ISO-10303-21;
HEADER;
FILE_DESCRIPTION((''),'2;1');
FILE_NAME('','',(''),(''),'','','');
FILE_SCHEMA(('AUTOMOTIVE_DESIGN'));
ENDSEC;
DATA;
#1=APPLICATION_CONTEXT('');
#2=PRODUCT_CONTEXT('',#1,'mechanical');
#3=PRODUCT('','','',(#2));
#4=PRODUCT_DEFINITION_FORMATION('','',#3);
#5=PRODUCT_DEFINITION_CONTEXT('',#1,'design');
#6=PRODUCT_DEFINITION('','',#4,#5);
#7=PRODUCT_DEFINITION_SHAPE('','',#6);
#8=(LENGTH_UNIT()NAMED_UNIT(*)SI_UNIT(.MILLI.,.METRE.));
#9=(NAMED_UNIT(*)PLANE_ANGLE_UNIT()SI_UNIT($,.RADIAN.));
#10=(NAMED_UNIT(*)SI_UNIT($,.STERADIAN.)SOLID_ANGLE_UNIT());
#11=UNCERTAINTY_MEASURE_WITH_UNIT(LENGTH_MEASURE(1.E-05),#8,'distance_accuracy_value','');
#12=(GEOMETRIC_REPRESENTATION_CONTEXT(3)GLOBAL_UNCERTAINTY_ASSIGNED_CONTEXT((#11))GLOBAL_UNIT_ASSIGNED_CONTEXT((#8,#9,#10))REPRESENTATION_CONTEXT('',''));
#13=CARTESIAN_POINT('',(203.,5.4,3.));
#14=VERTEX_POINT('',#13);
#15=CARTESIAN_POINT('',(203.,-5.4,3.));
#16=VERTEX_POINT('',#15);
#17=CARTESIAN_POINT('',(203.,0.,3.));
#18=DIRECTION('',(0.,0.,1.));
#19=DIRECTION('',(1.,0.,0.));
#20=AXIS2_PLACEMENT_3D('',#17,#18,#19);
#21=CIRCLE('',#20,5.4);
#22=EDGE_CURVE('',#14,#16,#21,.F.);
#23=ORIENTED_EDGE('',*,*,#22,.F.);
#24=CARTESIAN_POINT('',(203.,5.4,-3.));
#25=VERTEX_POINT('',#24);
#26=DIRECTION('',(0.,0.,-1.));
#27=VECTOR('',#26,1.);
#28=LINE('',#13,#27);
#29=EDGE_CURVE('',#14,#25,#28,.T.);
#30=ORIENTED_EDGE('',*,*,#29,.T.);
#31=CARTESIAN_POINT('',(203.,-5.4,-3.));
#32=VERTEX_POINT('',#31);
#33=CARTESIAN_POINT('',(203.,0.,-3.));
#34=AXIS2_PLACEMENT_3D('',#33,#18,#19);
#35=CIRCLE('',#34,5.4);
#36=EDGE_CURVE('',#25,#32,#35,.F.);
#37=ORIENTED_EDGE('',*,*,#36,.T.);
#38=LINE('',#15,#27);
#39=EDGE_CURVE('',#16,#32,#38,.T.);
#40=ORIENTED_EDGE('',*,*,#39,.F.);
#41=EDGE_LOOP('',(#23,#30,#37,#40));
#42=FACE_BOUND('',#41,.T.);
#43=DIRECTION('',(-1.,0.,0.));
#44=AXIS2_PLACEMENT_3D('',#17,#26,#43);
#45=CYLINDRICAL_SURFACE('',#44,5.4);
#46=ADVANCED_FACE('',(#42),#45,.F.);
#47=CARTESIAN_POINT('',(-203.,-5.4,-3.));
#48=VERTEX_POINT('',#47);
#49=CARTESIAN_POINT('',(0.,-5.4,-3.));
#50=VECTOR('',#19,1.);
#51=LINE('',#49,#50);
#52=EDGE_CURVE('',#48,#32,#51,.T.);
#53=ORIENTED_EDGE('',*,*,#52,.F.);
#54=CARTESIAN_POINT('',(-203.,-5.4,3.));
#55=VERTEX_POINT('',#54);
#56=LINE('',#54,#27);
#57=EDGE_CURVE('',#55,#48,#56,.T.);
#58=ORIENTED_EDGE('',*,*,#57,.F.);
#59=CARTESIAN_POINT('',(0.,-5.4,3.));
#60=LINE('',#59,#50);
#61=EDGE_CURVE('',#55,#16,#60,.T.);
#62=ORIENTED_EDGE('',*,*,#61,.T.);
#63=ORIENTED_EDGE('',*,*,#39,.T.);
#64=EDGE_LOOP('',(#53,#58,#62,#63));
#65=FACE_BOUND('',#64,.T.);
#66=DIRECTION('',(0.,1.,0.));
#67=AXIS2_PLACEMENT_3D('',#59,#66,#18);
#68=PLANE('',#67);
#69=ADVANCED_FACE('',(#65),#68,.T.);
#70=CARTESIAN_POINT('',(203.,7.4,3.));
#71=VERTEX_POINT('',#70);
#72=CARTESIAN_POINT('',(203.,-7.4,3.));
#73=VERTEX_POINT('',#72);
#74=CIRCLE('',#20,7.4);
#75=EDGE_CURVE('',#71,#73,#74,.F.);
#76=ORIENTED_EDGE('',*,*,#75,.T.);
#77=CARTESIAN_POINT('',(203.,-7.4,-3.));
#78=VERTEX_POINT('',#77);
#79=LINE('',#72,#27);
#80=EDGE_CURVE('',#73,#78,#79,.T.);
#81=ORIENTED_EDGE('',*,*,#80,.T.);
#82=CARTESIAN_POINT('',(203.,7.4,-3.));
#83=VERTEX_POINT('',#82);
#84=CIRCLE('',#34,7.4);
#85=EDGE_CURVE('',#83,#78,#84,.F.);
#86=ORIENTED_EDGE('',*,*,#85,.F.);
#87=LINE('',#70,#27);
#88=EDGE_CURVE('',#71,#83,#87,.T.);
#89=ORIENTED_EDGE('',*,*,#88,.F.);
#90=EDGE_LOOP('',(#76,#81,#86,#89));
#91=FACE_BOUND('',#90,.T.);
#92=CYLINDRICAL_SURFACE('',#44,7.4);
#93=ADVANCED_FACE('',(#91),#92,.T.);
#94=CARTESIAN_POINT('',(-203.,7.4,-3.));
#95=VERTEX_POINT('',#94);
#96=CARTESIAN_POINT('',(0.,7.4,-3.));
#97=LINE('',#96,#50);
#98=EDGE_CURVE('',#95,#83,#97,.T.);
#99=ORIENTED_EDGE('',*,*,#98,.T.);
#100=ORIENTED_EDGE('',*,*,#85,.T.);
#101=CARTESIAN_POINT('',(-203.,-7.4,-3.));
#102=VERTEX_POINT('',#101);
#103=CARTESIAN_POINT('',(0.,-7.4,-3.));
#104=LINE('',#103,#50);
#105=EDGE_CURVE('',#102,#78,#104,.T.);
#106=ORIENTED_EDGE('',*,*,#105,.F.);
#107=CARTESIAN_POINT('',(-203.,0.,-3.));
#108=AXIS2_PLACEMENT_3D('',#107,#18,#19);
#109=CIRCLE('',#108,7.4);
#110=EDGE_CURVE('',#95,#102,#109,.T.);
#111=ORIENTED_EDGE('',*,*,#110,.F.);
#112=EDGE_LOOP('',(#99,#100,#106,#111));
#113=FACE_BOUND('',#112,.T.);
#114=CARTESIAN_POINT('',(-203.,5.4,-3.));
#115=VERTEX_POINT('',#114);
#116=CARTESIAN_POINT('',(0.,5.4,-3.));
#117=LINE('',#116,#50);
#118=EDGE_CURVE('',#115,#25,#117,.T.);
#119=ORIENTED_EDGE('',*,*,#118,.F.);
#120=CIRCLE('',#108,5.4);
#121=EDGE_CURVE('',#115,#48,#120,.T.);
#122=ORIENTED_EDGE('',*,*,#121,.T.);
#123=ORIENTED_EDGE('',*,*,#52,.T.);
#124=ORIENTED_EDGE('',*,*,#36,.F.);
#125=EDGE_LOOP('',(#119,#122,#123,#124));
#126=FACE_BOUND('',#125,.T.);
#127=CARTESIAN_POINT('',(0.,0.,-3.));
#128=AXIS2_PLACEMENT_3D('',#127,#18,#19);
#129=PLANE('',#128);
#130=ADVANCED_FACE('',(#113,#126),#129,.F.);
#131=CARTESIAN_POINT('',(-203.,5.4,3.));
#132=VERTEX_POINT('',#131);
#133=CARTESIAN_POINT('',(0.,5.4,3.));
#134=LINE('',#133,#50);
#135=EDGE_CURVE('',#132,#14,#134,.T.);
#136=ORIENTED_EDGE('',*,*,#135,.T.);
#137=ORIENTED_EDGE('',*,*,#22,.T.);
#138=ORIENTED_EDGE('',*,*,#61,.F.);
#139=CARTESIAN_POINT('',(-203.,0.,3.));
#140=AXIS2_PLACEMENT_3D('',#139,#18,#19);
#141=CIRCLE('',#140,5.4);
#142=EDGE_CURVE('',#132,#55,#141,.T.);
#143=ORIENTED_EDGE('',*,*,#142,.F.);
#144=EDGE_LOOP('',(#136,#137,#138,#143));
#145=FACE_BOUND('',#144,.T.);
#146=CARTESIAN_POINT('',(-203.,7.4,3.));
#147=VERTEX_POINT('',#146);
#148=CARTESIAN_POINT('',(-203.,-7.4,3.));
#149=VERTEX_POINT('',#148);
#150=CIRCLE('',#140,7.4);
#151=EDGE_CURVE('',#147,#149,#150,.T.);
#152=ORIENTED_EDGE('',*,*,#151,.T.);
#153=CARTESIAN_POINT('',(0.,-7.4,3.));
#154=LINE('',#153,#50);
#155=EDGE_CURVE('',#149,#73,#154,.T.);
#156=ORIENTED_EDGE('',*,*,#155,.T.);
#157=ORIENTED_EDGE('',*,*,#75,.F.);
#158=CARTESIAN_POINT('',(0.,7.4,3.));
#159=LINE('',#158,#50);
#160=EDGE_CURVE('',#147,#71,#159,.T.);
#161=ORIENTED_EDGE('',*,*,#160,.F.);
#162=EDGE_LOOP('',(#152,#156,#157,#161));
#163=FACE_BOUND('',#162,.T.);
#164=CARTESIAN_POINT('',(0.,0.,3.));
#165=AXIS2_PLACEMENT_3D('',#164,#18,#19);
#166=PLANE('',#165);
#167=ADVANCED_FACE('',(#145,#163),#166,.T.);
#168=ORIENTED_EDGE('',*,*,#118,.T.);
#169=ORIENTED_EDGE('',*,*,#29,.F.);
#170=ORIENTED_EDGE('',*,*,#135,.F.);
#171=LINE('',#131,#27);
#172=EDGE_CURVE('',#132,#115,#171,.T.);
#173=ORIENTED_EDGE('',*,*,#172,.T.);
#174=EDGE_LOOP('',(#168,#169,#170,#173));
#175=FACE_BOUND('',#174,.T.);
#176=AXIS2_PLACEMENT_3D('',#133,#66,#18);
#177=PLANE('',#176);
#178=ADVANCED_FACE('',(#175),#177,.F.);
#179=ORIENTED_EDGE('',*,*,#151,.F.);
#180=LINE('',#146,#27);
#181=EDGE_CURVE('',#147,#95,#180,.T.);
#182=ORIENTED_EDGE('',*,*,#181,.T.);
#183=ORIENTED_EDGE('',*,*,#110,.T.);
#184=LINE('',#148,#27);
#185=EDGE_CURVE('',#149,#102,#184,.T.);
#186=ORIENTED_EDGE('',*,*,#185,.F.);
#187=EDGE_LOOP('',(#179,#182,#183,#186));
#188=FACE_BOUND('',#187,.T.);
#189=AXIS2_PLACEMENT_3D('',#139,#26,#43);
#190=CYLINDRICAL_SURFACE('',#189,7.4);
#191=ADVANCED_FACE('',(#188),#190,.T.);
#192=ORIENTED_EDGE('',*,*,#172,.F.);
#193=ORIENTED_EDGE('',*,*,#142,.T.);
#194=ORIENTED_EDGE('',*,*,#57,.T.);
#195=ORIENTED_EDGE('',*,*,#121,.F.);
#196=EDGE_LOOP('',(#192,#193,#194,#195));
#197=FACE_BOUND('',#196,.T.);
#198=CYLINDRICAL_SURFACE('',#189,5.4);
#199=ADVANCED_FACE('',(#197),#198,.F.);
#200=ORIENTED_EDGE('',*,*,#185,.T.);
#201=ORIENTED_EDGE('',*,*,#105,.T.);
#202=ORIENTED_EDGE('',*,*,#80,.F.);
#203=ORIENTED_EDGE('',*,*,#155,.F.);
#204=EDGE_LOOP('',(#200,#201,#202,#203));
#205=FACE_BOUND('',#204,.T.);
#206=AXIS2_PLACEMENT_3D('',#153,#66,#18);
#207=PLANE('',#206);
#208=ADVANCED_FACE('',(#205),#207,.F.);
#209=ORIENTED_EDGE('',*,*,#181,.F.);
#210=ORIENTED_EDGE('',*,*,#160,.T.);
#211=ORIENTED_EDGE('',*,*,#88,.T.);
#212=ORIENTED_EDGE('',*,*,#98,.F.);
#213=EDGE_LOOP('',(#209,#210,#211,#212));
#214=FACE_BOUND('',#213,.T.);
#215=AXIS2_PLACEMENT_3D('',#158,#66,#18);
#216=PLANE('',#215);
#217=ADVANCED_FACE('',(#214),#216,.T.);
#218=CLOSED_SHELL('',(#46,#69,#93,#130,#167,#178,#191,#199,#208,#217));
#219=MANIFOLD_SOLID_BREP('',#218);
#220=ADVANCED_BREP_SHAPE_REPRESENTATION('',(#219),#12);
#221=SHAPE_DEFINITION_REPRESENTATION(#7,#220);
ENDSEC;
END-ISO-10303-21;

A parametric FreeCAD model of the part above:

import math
import FreeCAD as App
import Part
import Sketcher

V = App.Vector
Q = App.Units.Quantity

doc = App.newDocument("Part")
params = doc.addObject("Spreadsheet::Sheet", "Params")
for row, (alias, value) in enumerate([
    ("sketch1_radius", "7.4 mm"),
    ("sketch1_radius2", "5.4 mm"),
    ("sketch1_width", "406 mm"),
    ("pad1_length", "6 mm"),
], start=1):
    params.set(f"A{row}", alias)
    params.set(f"B{row}", "=" + value)
    params.setAlias(f"B{row}", alias)

body = doc.addObject("PartDesign::Body", "Body")

# Sketch on XY plane
sketch1 = body.newObject("Sketcher::SketchObject", "Sketch")
sketch1.AttachmentSupport = (doc.getObject("XY_Plane"), [""])
sketch1.MapMode = "FlatFace"
sketch1.addGeometry([
    Part.ArcOfCircle(Part.Circle(V(203, 0, 0), V(0, 0, 1), 7), math.radians(-90), math.radians(90)),  # 0
    Part.LineSegment(V(203, 7, 0), V(-203, 7, 0)),  # 1
    Part.ArcOfCircle(Part.Circle(V(-203, 0, 0), V(0, 0, 1), 7), math.radians(90), math.radians(270)),  # 2
    Part.LineSegment(V(-203, -7, 0), V(203, -7, 0)),  # 3
    Part.ArcOfCircle(Part.Circle(V(-203, 0, 0), V(0, 0, 1), 5), math.radians(90), math.radians(270)),  # 4
    Part.LineSegment(V(-203, 5, 0), V(203, 5, 0)),  # 5
    Part.ArcOfCircle(Part.Circle(V(203, 0, 0), V(0, 0, 1), 5), math.radians(-90), math.radians(90)),  # 6
    Part.LineSegment(V(203, -5, 0), V(-203, -5, 0)),  # 7
], False)
sketch1.addConstraint([
    Sketcher.Constraint("Tangent", 0, 2, 1, 1),
    Sketcher.Constraint("Tangent", 1, 2, 2, 1),
    Sketcher.Constraint("Tangent", 2, 2, 3, 1),
    Sketcher.Constraint("Tangent", 3, 2, 0, 1),
    Sketcher.Constraint("Tangent", 4, 1, 5, 1),
    Sketcher.Constraint("Tangent", 5, 2, 6, 2),
    Sketcher.Constraint("Tangent", 6, 1, 7, 1),
    Sketcher.Constraint("Tangent", 7, 2, 4, 2),
    Sketcher.Constraint("Horizontal", 1),
    Sketcher.Constraint("Horizontal", 3),
    Sketcher.Constraint("Horizontal", 5),
    Sketcher.Constraint("Horizontal", 7),
    Sketcher.Constraint("Coincident", 4, 3, 2, 3),
    Sketcher.Constraint("Symmetric", 0, 3, 2, 3, -1, 1),
    Sketcher.Constraint("Vertical", 6, 3, 0, 2),
    Sketcher.Constraint("Radius", 0, Q("7.4 mm")),
    Sketcher.Constraint("Radius", 4, Q("5.4 mm")),
    Sketcher.Constraint("DistanceX", 1, 2, 1, 1, Q("406 mm")),
])
sketch1.setExpression("Constraints[15]", "Params.sketch1_radius")
sketch1.setExpression("Constraints[16]", "Params.sketch1_radius2")
sketch1.setExpression("Constraints[17]", "Params.sketch1_width")
pad1 = body.newObject("PartDesign::Pad", "Pad")
pad1.Profile = sketch1
pad1.setExpression("Length", "Params.pad1_length")
pad1.Midplane = True

doc.recompute()
